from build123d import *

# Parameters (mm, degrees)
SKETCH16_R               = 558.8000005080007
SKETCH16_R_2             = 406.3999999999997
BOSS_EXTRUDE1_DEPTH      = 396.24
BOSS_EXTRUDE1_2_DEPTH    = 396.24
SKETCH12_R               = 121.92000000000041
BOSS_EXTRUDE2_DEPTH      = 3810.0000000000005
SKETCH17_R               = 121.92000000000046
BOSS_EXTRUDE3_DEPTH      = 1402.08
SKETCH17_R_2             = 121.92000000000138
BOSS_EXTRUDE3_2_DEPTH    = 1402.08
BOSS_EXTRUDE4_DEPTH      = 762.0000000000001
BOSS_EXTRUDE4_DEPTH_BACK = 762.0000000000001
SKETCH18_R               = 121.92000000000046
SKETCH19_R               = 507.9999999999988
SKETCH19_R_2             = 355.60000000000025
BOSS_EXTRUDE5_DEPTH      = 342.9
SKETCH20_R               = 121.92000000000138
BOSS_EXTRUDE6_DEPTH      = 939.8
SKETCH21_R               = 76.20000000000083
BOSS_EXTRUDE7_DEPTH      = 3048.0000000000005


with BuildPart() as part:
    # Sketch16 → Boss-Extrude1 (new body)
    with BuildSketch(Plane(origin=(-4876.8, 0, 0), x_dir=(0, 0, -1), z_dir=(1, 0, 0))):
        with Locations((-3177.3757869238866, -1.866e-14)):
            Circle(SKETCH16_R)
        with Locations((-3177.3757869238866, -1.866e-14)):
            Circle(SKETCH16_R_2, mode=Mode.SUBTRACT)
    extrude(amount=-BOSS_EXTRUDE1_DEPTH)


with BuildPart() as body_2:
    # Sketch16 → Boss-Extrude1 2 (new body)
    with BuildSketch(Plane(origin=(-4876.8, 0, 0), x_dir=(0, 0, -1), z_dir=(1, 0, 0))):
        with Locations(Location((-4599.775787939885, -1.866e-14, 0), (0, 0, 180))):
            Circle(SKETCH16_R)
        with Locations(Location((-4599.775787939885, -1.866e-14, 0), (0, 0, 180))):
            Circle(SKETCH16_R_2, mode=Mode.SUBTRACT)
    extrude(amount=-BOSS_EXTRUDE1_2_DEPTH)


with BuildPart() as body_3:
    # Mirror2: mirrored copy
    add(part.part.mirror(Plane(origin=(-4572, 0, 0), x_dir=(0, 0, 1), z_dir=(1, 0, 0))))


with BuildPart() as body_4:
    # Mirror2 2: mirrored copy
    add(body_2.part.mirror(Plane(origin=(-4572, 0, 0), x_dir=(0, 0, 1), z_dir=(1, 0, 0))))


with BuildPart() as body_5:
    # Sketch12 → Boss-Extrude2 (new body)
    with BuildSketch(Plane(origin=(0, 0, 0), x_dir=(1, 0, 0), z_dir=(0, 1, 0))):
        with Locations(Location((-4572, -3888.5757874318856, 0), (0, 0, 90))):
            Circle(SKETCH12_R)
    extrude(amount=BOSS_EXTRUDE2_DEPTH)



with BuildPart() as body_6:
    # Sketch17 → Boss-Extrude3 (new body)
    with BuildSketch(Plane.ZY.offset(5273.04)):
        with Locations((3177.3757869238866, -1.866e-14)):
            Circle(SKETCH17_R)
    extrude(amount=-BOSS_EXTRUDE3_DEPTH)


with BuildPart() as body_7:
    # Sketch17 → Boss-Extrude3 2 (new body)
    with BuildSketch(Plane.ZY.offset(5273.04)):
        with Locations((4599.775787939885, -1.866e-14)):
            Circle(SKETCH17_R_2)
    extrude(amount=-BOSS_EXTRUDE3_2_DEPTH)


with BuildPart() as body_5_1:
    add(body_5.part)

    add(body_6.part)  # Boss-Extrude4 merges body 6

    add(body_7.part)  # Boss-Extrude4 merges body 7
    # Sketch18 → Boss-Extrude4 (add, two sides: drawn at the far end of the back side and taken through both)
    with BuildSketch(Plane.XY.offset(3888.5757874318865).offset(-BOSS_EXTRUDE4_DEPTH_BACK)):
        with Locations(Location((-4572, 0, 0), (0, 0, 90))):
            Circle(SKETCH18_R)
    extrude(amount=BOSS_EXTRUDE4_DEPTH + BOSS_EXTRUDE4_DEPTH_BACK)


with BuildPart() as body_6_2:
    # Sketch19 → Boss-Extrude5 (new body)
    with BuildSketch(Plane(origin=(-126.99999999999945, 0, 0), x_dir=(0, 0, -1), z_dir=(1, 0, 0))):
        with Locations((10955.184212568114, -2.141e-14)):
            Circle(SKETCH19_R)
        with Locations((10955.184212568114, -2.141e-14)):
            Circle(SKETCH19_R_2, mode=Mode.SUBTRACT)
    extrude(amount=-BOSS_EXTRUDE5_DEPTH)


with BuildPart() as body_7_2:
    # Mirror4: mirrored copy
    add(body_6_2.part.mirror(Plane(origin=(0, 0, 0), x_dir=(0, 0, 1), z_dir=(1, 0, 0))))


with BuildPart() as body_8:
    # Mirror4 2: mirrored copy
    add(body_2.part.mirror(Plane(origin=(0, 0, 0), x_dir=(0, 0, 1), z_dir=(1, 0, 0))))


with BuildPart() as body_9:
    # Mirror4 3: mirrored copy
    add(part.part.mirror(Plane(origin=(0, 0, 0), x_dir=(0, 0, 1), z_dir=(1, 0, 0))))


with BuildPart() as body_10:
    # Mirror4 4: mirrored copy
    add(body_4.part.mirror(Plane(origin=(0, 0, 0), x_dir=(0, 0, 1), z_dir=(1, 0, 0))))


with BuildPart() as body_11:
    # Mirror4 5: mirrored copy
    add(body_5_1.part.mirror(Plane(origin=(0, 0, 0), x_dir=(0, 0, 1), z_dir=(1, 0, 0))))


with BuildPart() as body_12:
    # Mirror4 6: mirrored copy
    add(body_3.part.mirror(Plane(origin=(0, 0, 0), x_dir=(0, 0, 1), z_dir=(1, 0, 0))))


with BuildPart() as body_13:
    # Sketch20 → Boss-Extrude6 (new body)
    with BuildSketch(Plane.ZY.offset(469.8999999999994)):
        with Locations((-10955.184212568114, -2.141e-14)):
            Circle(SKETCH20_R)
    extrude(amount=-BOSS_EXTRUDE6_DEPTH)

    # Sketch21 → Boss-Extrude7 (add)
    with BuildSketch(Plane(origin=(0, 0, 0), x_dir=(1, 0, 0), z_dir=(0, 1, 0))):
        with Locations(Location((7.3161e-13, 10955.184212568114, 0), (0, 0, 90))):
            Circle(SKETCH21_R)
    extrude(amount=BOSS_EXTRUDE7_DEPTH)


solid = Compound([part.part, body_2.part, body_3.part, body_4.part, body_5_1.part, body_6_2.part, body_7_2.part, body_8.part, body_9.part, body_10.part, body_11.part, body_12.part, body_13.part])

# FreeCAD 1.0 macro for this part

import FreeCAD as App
import Part
import Sketcher

V = App.Vector
Q = App.Units.Quantity

doc = App.newDocument("Part")
body = doc.addObject("PartDesign::Body", "Body")

# Sketch on YZ plane
sketch1 = body.newObject("Sketcher::SketchObject", "Sketch")
sketch1.AttachmentSupport = (doc.getObject("YZ_Plane"), [""])
sketch1.MapMode = "FlatFace"
sketch1.AttachmentOffset = App.Placement(V(0, 0, -192 * 25.4), App.Rotation())
sketch1.addGeometry([
    Part.Circle(V(0, 3177.375787, 0), V(0, 0, 1), 558.800001),
    Part.Circle(V(0, 3177.375787, 0), V(0, 0, 1), 406.4),
], False)
sketch1.addConstraint([
    Sketcher.Constraint("Coincident", 1, 3, 0, 3),
    Sketcher.Constraint("PointOnObject", 0, 3, -2),
    Sketcher.Constraint("Diameter", 0, Q("44 in")),
    Sketcher.Constraint("Diameter", 1, Q("32 in")),
    Sketcher.Constraint("DistanceY", -1, 1, 0, 3, Q("3177.375787 mm")),
])
pad1 = body.newObject("PartDesign::Pad", "Pad")
pad1.Profile = sketch1
pad1.Length = Q("15.6 in")
pad1.Reversed = True
body2 = doc.addObject("PartDesign::Body", "Body001")

# Sketch on YZ plane
sketch2 = body2.newObject("Sketcher::SketchObject", "Sketch001")
sketch2.AttachmentSupport = (doc.getObject("YZ_Plane001"), [""])
sketch2.MapMode = "FlatFace"
sketch2.AttachmentOffset = App.Placement(V(0, 0, -192 * 25.4), App.Rotation())
sketch2.addGeometry([
    Part.Circle(V(0, 4599.775788, 0), V(0, 0, 1), 558.800001),
    Part.Circle(V(0, 4599.775788, 0), V(0, 0, 1), 406.4),
], False)
sketch2.addConstraint([
    Sketcher.Constraint("Coincident", 1, 3, 0, 3),
    Sketcher.Constraint("PointOnObject", 0, 3, -2),
    Sketcher.Constraint("Diameter", 0, Q("44 in")),
    Sketcher.Constraint("Diameter", 1, Q("32 in")),
    Sketcher.Constraint("DistanceY", -1, 1, 0, 3, Q("4599.775788 mm")),
])
pad2 = body2.newObject("PartDesign::Pad", "Pad001")
pad2.Profile = sketch2
pad2.Length = Q("15.6 in")
pad2.Reversed = True
body3 = doc.addObject("PartDesign::Body", "Body002")
doc.recompute()

mirroring = doc.addObject("Part::Mirroring", "Mirroring")
mirroring.Source = body
mirroring.Base = V(-4572, 0, 0)
mirroring.Normal = V(1, 0, 0)
body3.BaseFeature = mirroring
doc.recompute()
body4 = doc.addObject("PartDesign::Body", "Body003")
doc.recompute()

mirroring2 = doc.addObject("Part::Mirroring", "Mirroring001")
mirroring2.Source = body2
mirroring2.Base = V(-4572, 0, 0)
mirroring2.Normal = V(1, 0, 0)
body4.BaseFeature = mirroring2
doc.recompute()
body5 = doc.addObject("PartDesign::Body", "Body004")

# Sketch on XZ plane
sketch3 = body5.newObject("Sketcher::SketchObject", "Sketch002")
sketch3.AttachmentSupport = (doc.getObject("XZ_Plane004"), [""])
sketch3.MapMode = "FlatFace"
sketch3.addGeometry(Part.Circle(V(-4572, 3888.575787, 0), V(0, 0, 1), 121.92), False)
sketch3.addConstraint([
    Sketcher.Constraint("Diameter", 0, Q("9.6 in")),
    Sketcher.Constraint("DistanceX", 0, 3, -1, 1, Q("180 in")),
    Sketcher.Constraint("DistanceY", -1, 1, 0, 3, Q("3888.575787 mm")),
])
pad3 = body5.newObject("PartDesign::Pad", "Pad002")
pad3.Profile = sketch3
pad3.Length = Q("150 in")
pad3.Reversed = True
body6 = doc.addObject("PartDesign::Body", "Body005")

# Sketch on YZ plane
sketch4 = body6.newObject("Sketcher::SketchObject", "Sketch003")
sketch4.AttachmentSupport = (doc.getObject("YZ_Plane005"), [""])
sketch4.MapMode = "FlatFace"
sketch4.AttachmentOffset = App.Placement(V(0, 0, -207.6 * 25.4), App.Rotation())
sketch4.addGeometry(Part.Circle(V(0, 3177.375787, 0), V(0, 0, 1), 121.92), False)
sketch4.addConstraint([
    Sketcher.Constraint("PointOnObject", 0, 3, -2),
    Sketcher.Constraint("Diameter", 0, Q("9.6 in")),
    Sketcher.Constraint("DistanceY", -1, 1, 0, 3, Q("3177.375787 mm")),
])
pad4 = body6.newObject("PartDesign::Pad", "Pad003")
pad4.Profile = sketch4
pad4.Length = Q("55.2 in")
body7 = doc.addObject("PartDesign::Body", "Body006")

# Sketch on YZ plane
sketch5 = body7.newObject("Sketcher::SketchObject", "Sketch004")
sketch5.AttachmentSupport = (doc.getObject("YZ_Plane006"), [""])
sketch5.MapMode = "FlatFace"
sketch5.AttachmentOffset = App.Placement(V(0, 0, -207.6 * 25.4), App.Rotation())
sketch5.addGeometry(Part.Circle(V(0, 4599.775788, 0), V(0, 0, 1), 121.92), False)
sketch5.addConstraint([
    Sketcher.Constraint("PointOnObject", 0, 3, -2),
    Sketcher.Constraint("Diameter", 0, Q("9.6 in")),
    Sketcher.Constraint("DistanceY", -1, 1, 0, 3, Q("4599.775788 mm")),
])
pad5 = body7.newObject("PartDesign::Pad", "Pad004")
pad5.Profile = sketch5
pad5.Length = Q("55.2 in")
body5.AllowCompound = True
doc.recompute()

boolean = body5.newObject("PartDesign::Boolean", "Boolean")
boolean.Type = "Fuse"
boolean.addObjects([body6])
doc.recompute()

boolean2 = body5.newObject("PartDesign::Boolean", "Boolean001")
boolean2.Type = "Fuse"
boolean2.addObjects([body7])

# Sketch on XY plane
sketch6 = body5.newObject("Sketcher::SketchObject", "Sketch005")
sketch6.AttachmentSupport = (doc.getObject("XY_Plane004"), [""])
sketch6.MapMode = "FlatFace"
sketch6.AttachmentOffset = App.Placement(V(0, 0, 3888.575787), App.Rotation())
sketch6.addGeometry(Part.Circle(V(-4572, 0, 0), V(0, 0, 1), 121.92), False)
sketch6.addConstraint([
    Sketcher.Constraint("PointOnObject", 0, 3, -1),
    Sketcher.Constraint("Diameter", 0, Q("9.6 in")),
    Sketcher.Constraint("DistanceX", 0, 3, -1, 1, Q("180 in")),
])
pad6 = body5.newObject("PartDesign::Pad", "Pad005")
pad6.Profile = sketch6
pad6.Type = "TwoLengths"
pad6.Length = Q("30 in")
pad6.Length2 = Q("30 in")
body8 = doc.addObject("PartDesign::Body", "Body007")

# Sketch on YZ plane
sketch7 = body8.newObject("Sketcher::SketchObject", "Sketch006")
sketch7.AttachmentSupport = (doc.getObject("YZ_Plane007"), [""])
sketch7.MapMode = "FlatFace"
sketch7.AttachmentOffset = App.Placement(V(0, 0, -5 * 25.4), App.Rotation())
sketch7.addGeometry([
    Part.Circle(V(0, -10955.184213, 0), V(0, 0, 1), 508),
    Part.Circle(V(0, -10955.184213, 0), V(0, 0, 1), 355.6),
], False)
sketch7.addConstraint([
    Sketcher.Constraint("Coincident", 1, 3, 0, 3),
    Sketcher.Constraint("PointOnObject", 0, 3, -2),
    Sketcher.Constraint("Diameter", 0, Q("40 in")),
    Sketcher.Constraint("Diameter", 1, Q("28 in")),
    Sketcher.Constraint("DistanceY", 0, 3, -1, 1, Q("10955.184213 mm")),
])
pad7 = body8.newObject("PartDesign::Pad", "Pad006")
pad7.Profile = sketch7
pad7.Length = Q("13.5 in")
pad7.Reversed = True
body9 = doc.addObject("PartDesign::Body", "Body008")
doc.recompute()

mirroring3 = doc.addObject("Part::Mirroring", "Mirroring002")
mirroring3.Source = body8
mirroring3.Base = V(0, 0, 0)
mirroring3.Normal = V(1, 0, 0)
body9.BaseFeature = mirroring3
doc.recompute()
body10 = doc.addObject("PartDesign::Body", "Body009")
doc.recompute()

mirroring4 = doc.addObject("Part::Mirroring", "Mirroring003")
mirroring4.Source = body2
mirroring4.Base = V(0, 0, 0)
mirroring4.Normal = V(1, 0, 0)
body10.BaseFeature = mirroring4
doc.recompute()
body11 = doc.addObject("PartDesign::Body", "Body010")
doc.recompute()

mirroring5 = doc.addObject("Part::Mirroring", "Mirroring004")
mirroring5.Source = body
mirroring5.Base = V(0, 0, 0)
mirroring5.Normal = V(1, 0, 0)
body11.BaseFeature = mirroring5
doc.recompute()
body12 = doc.addObject("PartDesign::Body", "Body011")
doc.recompute()

mirroring6 = doc.addObject("Part::Mirroring", "Mirroring005")
mirroring6.Source = body4
mirroring6.Base = V(0, 0, 0)
mirroring6.Normal = V(1, 0, 0)
body12.BaseFeature = mirroring6
doc.recompute()
body13 = doc.addObject("PartDesign::Body", "Body012")
doc.recompute()

mirroring7 = doc.addObject("Part::Mirroring", "Mirroring006")
mirroring7.Source = body5
mirroring7.Base = V(0, 0, 0)
mirroring7.Normal = V(1, 0, 0)
body13.BaseFeature = mirroring7
doc.recompute()
body14 = doc.addObject("PartDesign::Body", "Body013")
doc.recompute()

mirroring8 = doc.addObject("Part::Mirroring", "Mirroring007")
mirroring8.Source = body3
mirroring8.Base = V(0, 0, 0)
mirroring8.Normal = V(1, 0, 0)
body14.BaseFeature = mirroring8
doc.recompute()
body15 = doc.addObject("PartDesign::Body", "Body014")

# Sketch on YZ plane
sketch8 = body15.newObject("Sketcher::SketchObject", "Sketch007")
sketch8.AttachmentSupport = (doc.getObject("YZ_Plane014"), [""])
sketch8.MapMode = "FlatFace"
sketch8.AttachmentOffset = App.Placement(V(0, 0, -18.5 * 25.4), App.Rotation())
sketch8.addGeometry(Part.Circle(V(0, -10955.184213, 0), V(0, 0, 1), 121.92), False)
sketch8.addConstraint([
    Sketcher.Constraint("PointOnObject", 0, 3, -2),
    Sketcher.Constraint("Diameter", 0, Q("9.6 in")),
    Sketcher.Constraint("DistanceY", 0, 3, -1, 1, Q("10955.184213 mm")),
])
pad8 = body15.newObject("PartDesign::Pad", "Pad007")
pad8.Profile = sketch8
pad8.Length = Q("37 in")

# Sketch on XZ plane
sketch9 = body15.newObject("Sketcher::SketchObject", "Sketch008")
sketch9.AttachmentSupport = (doc.getObject("XZ_Plane014"), [""])
sketch9.MapMode = "FlatFace"
sketch9.addGeometry(Part.Circle(V(0, -10955.184213, 0), V(0, 0, 1), 76.2), False)
sketch9.addConstraint([
    Sketcher.Constraint("PointOnObject", 0, 3, -2),
    Sketcher.Constraint("Diameter", 0, Q("6 in")),
    Sketcher.Constraint("DistanceY", 0, 3, -1, 1, Q("10955.184213 mm")),
])
pad9 = body15.newObject("PartDesign::Pad", "Pad008")
pad9.Profile = sketch9
pad9.Length = Q("120 in")
pad9.Reversed = True
mirroring.Visibility = False
mirroring2.Visibility = False
mirroring3.Visibility = False
mirroring4.Visibility = False
mirroring5.Visibility = False
mirroring6.Visibility = False
mirroring7.Visibility = False
mirroring8.Visibility = False

doc.recompute()
